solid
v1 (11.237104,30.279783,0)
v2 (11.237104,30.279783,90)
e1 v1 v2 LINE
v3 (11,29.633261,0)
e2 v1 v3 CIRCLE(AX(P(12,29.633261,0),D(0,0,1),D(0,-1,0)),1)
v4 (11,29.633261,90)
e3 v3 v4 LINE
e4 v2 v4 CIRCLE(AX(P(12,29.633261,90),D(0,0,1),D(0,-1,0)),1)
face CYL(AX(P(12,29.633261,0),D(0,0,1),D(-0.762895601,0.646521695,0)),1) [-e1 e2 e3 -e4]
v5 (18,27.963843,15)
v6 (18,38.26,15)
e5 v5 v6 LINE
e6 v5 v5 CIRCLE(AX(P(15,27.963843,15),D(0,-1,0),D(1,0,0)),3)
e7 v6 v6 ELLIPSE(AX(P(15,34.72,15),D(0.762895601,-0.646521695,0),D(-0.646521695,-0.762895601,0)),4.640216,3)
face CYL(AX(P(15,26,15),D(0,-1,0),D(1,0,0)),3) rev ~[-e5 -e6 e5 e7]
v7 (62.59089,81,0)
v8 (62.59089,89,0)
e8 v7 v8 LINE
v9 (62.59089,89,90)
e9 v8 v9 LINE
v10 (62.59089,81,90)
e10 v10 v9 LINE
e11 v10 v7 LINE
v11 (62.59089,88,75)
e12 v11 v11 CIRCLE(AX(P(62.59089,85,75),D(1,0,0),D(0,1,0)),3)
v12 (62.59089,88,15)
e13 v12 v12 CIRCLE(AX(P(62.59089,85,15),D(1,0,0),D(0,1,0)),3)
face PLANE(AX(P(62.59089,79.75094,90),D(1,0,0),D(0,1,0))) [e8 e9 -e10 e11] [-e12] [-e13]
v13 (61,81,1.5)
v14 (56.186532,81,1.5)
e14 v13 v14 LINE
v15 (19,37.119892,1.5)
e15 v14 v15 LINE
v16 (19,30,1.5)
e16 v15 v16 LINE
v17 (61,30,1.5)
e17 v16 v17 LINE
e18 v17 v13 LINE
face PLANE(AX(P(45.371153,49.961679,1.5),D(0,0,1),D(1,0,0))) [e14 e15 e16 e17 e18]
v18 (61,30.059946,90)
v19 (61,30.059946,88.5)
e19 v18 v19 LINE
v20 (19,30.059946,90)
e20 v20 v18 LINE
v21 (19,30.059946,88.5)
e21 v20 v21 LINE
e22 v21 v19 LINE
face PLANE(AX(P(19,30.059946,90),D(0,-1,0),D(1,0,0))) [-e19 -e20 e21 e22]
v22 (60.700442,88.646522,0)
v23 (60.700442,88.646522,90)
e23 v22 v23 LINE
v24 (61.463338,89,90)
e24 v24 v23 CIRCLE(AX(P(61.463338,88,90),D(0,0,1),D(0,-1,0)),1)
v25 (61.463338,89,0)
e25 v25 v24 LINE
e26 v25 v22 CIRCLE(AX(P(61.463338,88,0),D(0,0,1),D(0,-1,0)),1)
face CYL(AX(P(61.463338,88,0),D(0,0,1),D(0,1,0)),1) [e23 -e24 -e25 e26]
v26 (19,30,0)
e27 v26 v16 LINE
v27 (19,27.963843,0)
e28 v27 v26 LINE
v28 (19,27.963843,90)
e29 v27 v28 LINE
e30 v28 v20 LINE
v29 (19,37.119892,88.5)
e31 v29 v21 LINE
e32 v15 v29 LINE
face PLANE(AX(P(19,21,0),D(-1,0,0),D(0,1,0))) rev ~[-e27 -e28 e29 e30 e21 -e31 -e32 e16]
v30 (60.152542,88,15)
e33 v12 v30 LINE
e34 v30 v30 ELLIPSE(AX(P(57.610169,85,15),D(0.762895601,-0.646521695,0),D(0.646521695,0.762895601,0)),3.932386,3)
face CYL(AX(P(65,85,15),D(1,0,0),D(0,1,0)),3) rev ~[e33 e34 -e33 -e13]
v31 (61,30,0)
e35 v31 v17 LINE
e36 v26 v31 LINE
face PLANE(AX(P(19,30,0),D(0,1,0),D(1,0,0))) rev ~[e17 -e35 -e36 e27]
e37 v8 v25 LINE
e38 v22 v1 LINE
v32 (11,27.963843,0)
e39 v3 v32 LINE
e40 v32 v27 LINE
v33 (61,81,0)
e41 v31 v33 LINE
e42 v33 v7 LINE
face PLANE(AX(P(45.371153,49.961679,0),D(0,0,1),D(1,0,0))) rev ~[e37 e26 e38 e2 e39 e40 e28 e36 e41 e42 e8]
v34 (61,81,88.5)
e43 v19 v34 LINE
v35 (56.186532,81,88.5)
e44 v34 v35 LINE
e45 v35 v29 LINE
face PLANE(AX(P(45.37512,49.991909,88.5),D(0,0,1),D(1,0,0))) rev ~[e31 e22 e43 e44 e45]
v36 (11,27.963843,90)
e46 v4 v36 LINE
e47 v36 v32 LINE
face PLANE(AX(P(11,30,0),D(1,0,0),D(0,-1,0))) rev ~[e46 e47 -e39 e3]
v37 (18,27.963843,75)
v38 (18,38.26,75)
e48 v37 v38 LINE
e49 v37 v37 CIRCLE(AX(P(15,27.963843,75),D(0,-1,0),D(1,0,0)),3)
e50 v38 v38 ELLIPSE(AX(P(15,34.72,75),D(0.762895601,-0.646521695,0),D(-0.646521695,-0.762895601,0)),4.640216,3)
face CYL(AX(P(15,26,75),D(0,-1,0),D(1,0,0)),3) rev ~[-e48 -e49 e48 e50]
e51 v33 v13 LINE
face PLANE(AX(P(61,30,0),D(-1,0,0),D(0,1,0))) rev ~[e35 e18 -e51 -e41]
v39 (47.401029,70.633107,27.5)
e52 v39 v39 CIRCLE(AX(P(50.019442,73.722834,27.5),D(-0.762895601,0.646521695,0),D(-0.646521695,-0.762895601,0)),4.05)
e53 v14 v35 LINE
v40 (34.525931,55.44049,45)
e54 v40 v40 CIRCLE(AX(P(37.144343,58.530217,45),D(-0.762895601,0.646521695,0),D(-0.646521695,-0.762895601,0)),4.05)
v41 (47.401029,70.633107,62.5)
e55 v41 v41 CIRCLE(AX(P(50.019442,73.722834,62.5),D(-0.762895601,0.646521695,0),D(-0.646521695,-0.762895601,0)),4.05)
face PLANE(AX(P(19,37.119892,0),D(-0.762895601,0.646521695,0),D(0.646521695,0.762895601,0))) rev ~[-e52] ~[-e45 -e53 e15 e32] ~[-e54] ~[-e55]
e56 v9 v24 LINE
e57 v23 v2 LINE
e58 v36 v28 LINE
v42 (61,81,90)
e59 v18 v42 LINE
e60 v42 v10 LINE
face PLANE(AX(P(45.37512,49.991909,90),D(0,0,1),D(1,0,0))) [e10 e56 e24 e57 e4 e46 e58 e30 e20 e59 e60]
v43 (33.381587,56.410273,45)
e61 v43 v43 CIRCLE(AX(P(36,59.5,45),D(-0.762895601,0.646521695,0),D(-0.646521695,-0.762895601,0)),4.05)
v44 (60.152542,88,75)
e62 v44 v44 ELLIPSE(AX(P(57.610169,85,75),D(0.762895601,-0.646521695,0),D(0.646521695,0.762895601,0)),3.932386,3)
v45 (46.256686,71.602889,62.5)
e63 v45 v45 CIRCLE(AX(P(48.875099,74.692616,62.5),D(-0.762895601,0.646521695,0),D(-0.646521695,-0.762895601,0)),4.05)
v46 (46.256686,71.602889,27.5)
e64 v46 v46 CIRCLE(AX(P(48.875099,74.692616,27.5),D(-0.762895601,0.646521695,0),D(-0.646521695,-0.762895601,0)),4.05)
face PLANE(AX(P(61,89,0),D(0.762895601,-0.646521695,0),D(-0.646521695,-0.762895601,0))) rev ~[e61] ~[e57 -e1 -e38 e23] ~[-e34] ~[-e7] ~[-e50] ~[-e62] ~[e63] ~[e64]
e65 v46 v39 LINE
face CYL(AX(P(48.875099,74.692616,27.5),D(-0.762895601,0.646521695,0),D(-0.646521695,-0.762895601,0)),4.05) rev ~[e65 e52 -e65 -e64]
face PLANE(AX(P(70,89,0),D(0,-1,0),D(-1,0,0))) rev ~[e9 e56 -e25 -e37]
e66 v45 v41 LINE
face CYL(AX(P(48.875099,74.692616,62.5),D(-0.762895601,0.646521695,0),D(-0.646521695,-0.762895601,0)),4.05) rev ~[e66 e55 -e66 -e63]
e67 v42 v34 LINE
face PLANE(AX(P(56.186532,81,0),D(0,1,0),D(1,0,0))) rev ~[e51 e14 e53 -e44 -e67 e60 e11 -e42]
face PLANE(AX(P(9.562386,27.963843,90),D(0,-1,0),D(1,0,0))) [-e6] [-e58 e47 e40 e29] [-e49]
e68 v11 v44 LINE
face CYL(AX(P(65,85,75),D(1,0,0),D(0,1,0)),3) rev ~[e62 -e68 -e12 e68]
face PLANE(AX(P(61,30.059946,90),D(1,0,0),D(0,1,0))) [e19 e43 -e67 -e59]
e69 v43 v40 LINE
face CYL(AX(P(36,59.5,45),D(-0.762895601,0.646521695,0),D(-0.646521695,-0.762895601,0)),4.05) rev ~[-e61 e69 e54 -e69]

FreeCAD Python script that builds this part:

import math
import FreeCAD as App
import Part
import Sketcher

V = App.Vector
Q = App.Units.Quantity


def edges_at(feature, points):
    """Names of the edges that pass closest to the given points."""
    edges = feature.Shape.Edges
    near = lambda p: min(range(len(edges)), key=lambda i: edges[i].distToShape(Part.Vertex(*p))[0])
    return sorted({f"Edge{near(p) + 1}" for p in points})


def add_polygon(sketch, points):
    """Adds a closed chain of lines whose ends are joined by coincident constraints."""
    first, n = sketch.GeometryCount, len(points)
    for a, b in zip(points, points[1:] + points[:1]):
        sketch.addGeometry(Part.LineSegment(App.Vector(*a, 0), App.Vector(*b, 0)), False)
    for i in range(n):
        sketch.addConstraint(Sketcher.Constraint("Coincident", first + i, 2, first + (i + 1) % n, 1))

doc = App.newDocument("Part")
body = doc.addObject("PartDesign::Body", "Body")

# Sketch on XY plane
sketch1 = body.newObject("Sketcher::SketchObject", "Sketch")
sketch1.AttachmentSupport = (doc.getObject("XY_Plane"), [""])
sketch1.MapMode = "FlatFace"
add_polygon(sketch1, [(70, 89), (61, 89), (11, 30), (11, 21), (19, 21), (19, 37), (56, 81), (70, 81)])  # lines 0-7
sketch1.addConstraint([
    Sketcher.Constraint("Horizontal", 0),
    Sketcher.Constraint("Vertical", 2),
    Sketcher.Constraint("Horizontal", 3),
    Sketcher.Constraint("Vertical", 4),
    Sketcher.Constraint("Horizontal", 6),
    Sketcher.Constraint("Vertical", 7),
    Sketcher.Constraint("Parallel", 1, 5),
    Sketcher.Constraint("Equal", 0, 2),
    Sketcher.Constraint("Equal", 3, 7),
    Sketcher.Constraint("DistanceX", 0, 2, 0, 1, Q("9 mm")),
    Sketcher.Constraint("DistanceX", 3, 1, 3, 2, Q("8 mm")),
    Sketcher.Constraint("DistanceX", -1, 1, 0, 2, Q("61 mm")),
    Sketcher.Constraint("DistanceY", -1, 1, 0, 2, Q("89 mm")),
    Sketcher.Constraint("DistanceX", -1, 1, 1, 2, Q("11 mm")),
    Sketcher.Constraint("DistanceY", -1, 1, 1, 2, Q("30 mm")),
    Sketcher.Constraint("DistanceX", 6, 1, 6, 2, Q("13.813468 mm")),
])
pad1 = body.newObject("PartDesign::Pad", "Pad")
pad1.Profile = sketch1
pad1.Length = 90

# Sketch on an angled plane
sketch2 = body.newObject("Sketcher::SketchObject", "Sketch001")
sketch2.Placement = App.Placement(V(-8.39475, 7.114195, 0), App.Rotation(V(-0.646521695, -0.762895601, 0), V(0, 0, 1), V(-0.762895601, 0.646521695, 0), "ZXY"))
sketch2.addGeometry([
    Part.Circle(V(-88.6, 27.5, 0), V(0, 0, 1), 4),
    Part.Circle(V(-88.6, 62.5, 0), V(0, 0, 1), 4),
    Part.Circle(V(-68.7, 45, 0), V(0, 0, 1), 4),
], False)
sketch2.addConstraint([
    Sketcher.Constraint("Equal", 0, 1),
    Sketcher.Constraint("Equal", 1, 2),
    Sketcher.Constraint("Vertical", 0, 3, 1, 3),
    Sketcher.Constraint("Diameter", 0, Q("8.1 mm")),
    Sketcher.Constraint("DistanceY", -1, 1, 2, 3, Q("45 mm")),
    Sketcher.Constraint("DistanceY", 0, 3, 1, 3, Q("35 mm")),
    Sketcher.Constraint("DistanceY", -1, 1, 0, 3, Q("27.5 mm")),
    Sketcher.Constraint("DistanceX", 0, 3, -1, 1, Q("88.58148 mm")),
    Sketcher.Constraint("DistanceX", 2, 3, -1, 1, Q("68.667069 mm")),
])
pocket1 = body.newObject("PartDesign::Pocket", "Pocket")
pocket1.Profile = sketch2
pocket1.Length = 25

# Sketch on XZ plane
sketch3 = body.newObject("Sketcher::SketchObject", "Sketch002")
sketch3.AttachmentSupport = (doc.getObject("XZ_Plane"), [""])
sketch3.MapMode = "FlatFace"
sketch3.AttachmentOffset = App.Placement(V(0, 0, -21), App.Rotation())
sketch3.addGeometry([
    Part.ArcOfCircle(Part.Circle(V(15, 75, 0), V(0, 0, 1), 1.8), math.radians(0), math.radians(90)),  # 0
    Part.ArcOfCircle(Part.Circle(V(15, 75, 0), V(0, 0, 1), 1.8), math.radians(90), math.radians(270)),  # 1
    Part.ArcOfCircle(Part.Circle(V(15, 75, 0), V(0, 0, 1), 1.8), math.radians(-90), math.radians(0)),  # 2
    Part.ArcOfCircle(Part.Circle(V(15, 15, 0), V(0, 0, 1), 1.8), math.radians(0), math.radians(90)),  # 3
    Part.ArcOfCircle(Part.Circle(V(15, 15, 0), V(0, 0, 1), 1.8), math.radians(90), math.radians(270)),  # 4
    Part.ArcOfCircle(Part.Circle(V(15, 15, 0), V(0, 0, 1), 1.8), math.radians(-90), math.radians(0)),  # 5
], False)
sketch3.addConstraint([
    Sketcher.Constraint("Tangent", 0, 2, 1, 1),
    Sketcher.Constraint("Tangent", 1, 2, 2, 1),
    Sketcher.Constraint("Tangent", 2, 2, 0, 1),
    Sketcher.Constraint("Tangent", 3, 2, 4, 1),
    Sketcher.Constraint("Tangent", 4, 2, 5, 1),
    Sketcher.Constraint("Tangent", 5, 2, 3, 1),
    Sketcher.Constraint("Equal", 2, 3),
    Sketcher.Constraint("Horizontal", 1, 3, 2, 2),
    Sketcher.Constraint("Horizontal", 4, 3, 5, 2),
    Sketcher.Constraint("Vertical", 2, 3, 3, 3),
    Sketcher.Constraint("Vertical", 5, 3, 0, 2),
    Sketcher.Constraint("Vertical", 0, 2, 1, 2),
    Sketcher.Constraint("Vertical", 1, 2, 3, 2),
    Sketcher.Constraint("Vertical", 3, 2, 4, 2),
    Sketcher.Constraint("Radius", 0, Q("1.75 mm")),
    Sketcher.Constraint("DistanceX", -1, 1, 0, 3, Q("15 mm")),
    Sketcher.Constraint("DistanceY", -1, 1, 0, 3, Q("75 mm")),
    Sketcher.Constraint("DistanceY", -1, 1, 3, 3, Q("15 mm")),
])
pocket2 = body.newObject("PartDesign::Pocket", "Pocket001")
pocket2.Profile = sketch3
pocket2.Length = 25

# Sketch on YZ plane
sketch4 = body.newObject("Sketcher::SketchObject", "Sketch003")
sketch4.AttachmentSupport = (doc.getObject("YZ_Plane"), [""])
sketch4.MapMode = "FlatFace"
sketch4.AttachmentOffset = App.Placement(V(0, 0, 70), App.Rotation())
sketch4.addGeometry([
    Part.Circle(V(85, 75, 0), V(0, 0, 1), 1.8),
    Part.Circle(V(85, 15, 0), V(0, 0, 1), 1.8),
], False)
sketch4.addConstraint([
    Sketcher.Constraint("Equal", 0, 1),
    Sketcher.Constraint("Vertical", 0, 3, 1, 3),
    Sketcher.Constraint("Diameter", 0, Q("3.5 mm")),
    Sketcher.Constraint("DistanceX", -1, 1, 0, 3, Q("85 mm")),
    Sketcher.Constraint("DistanceY", -1, 1, 0, 3, Q("75 mm")),
    Sketcher.Constraint("DistanceY", -1, 1, 1, 3, Q("15 mm")),
])
pocket3 = body.newObject("PartDesign::Pocket", "Pocket002")
pocket3.Profile = sketch4
pocket3.Length = 25

# Sketch on YZ plane
sketch5 = body.newObject("Sketcher::SketchObject", "Sketch004")
sketch5.AttachmentSupport = (doc.getObject("YZ_Plane"), [""])
sketch5.MapMode = "FlatFace"
sketch5.AttachmentOffset = App.Placement(V(0, 0, 65), App.Rotation())
sketch5.addGeometry([
    Part.Circle(V(85, 75, 0), V(0, 0, 1), 3),
    Part.Circle(V(85, 15, 0), V(0, 0, 1), 3),
], False)
sketch5.addConstraint([
    Sketcher.Constraint("Equal", 0, 1),
    Sketcher.Constraint("Vertical", 0, 3, 1, 3),
    Sketcher.Constraint("Diameter", 0, Q("6 mm")),
    Sketcher.Constraint("DistanceX", -1, 1, 0, 3, Q("85 mm")),
    Sketcher.Constraint("DistanceY", -1, 1, 0, 3, Q("75 mm")),
    Sketcher.Constraint("DistanceY", -1, 1, 1, 3, Q("15 mm")),
])
pocket4 = body.newObject("PartDesign::Pocket", "Pocket003")
pocket4.Profile = sketch5
pocket4.Length = 25

# Sketch on XZ plane
sketch6 = body.newObject("Sketcher::SketchObject", "Sketch005")
sketch6.AttachmentSupport = (doc.getObject("XZ_Plane"), [""])
sketch6.MapMode = "FlatFace"
sketch6.AttachmentOffset = App.Placement(V(0, 0, -26), App.Rotation())
sketch6.addGeometry([
    Part.Circle(V(15, 75, 0), V(0, 0, 1), 3),
    Part.Circle(V(15, 15, 0), V(0, 0, 1), 3),
], False)
sketch6.addConstraint([
    Sketcher.Constraint("Equal", 0, 1),
    Sketcher.Constraint("Vertical", 0, 3, 1, 3),
    Sketcher.Constraint("Diameter", 0, Q("6 mm")),
    Sketcher.Constraint("DistanceX", -1, 1, 0, 3, Q("15 mm")),
    Sketcher.Constraint("DistanceY", -1, 1, 0, 3, Q("75 mm")),
    Sketcher.Constraint("DistanceY", -1, 1, 1, 3, Q("15 mm")),
])
pocket5 = body.newObject("PartDesign::Pocket", "Pocket004")
pocket5.Profile = sketch6
pocket5.Length = 25
doc.recompute()

chamfer = body.newObject("PartDesign::Chamfer", "Chamfer")
chamfer.Base = (pocket5, edges_at(pocket5, [
    (70, 81, 45),
    (70, 89, 45),
    (19, 21, 45),
    (11, 21, 45),
]))
chamfer.Size = 2
doc.recompute()

fillet = body.newObject("PartDesign::Fillet", "Fillet")
fillet.Base = (chamfer, edges_at(chamfer, [(61, 89, 45), (11, 30, 45)]))
fillet.Radius = 1

# Sketch on XY plane
sketch7 = body.newObject("Sketcher::SketchObject", "Sketch006")
sketch7.AttachmentSupport = (doc.getObject("XY_Plane"), [""])
sketch7.MapMode = "FlatFace"
sketch7.AttachmentOffset = App.Placement(V(0, 0, 90), App.Rotation())
add_polygon(sketch7, [(19, 37.1), (19, 30.1), (61, 30.1), (61, 81), (56.2, 81)])  # lines 0-4
sketch7.addConstraint([
    Sketcher.Constraint("Vertical", 0),
    Sketcher.Constraint("Horizontal", 1),
    Sketcher.Constraint("Vertical", 2),
    Sketcher.Constraint("Horizontal", 3),
    Sketcher.Constraint("DistanceX", 1, 1, 1, 2, Q("42 mm")),
    Sketcher.Constraint("DistanceX", -1, 1, 0, 2, Q("19 mm")),
    Sketcher.Constraint("DistanceY", -1, 1, 2, 2, Q("81 mm")),
    Sketcher.Constraint("DistanceX", 3, 2, 3, 1, Q("4.813468 mm")),
    Sketcher.Constraint("Distance", 4, Q("57.517841 mm")),
    Sketcher.Constraint("DistanceY", 0, 2, 0, 1, Q("7.059946 mm")),
])
pad2 = body.newObject("PartDesign::Pad", "Pad001")
pad2.Profile = sketch7
pad2.Length = 1.5
pad2.Reversed = True

# Sketch on XY plane
sketch8 = body.newObject("Sketcher::SketchObject", "Sketch007")
sketch8.AttachmentSupport = (doc.getObject("XY_Plane"), [""])
sketch8.MapMode = "FlatFace"
add_polygon(sketch8, [(61, 30), (61, 81), (56.2, 81), (19, 37.1), (19, 30)])  # lines 0-4
sketch8.addConstraint([
    Sketcher.Constraint("Vertical", 0),
    Sketcher.Constraint("Horizontal", 1),
    Sketcher.Constraint("Vertical", 3),
    Sketcher.Constraint("Horizontal", 4),
    Sketcher.Constraint("DistanceX", 4, 1, 4, 2, Q("42 mm")),
    Sketcher.Constraint("DistanceY", 0, 1, 0, 2, Q("51 mm")),
    Sketcher.Constraint("DistanceX", -1, 1, 0, 2, Q("61 mm")),
    Sketcher.Constraint("DistanceY", -1, 1, 0, 2, Q("81 mm")),
    Sketcher.Constraint("DistanceX", 1, 2, 1, 1, Q("4.813468 mm")),
    Sketcher.Constraint("Distance", 2, Q("57.517841 mm")),
])
pad3 = body.newObject("PartDesign::Pad", "Pad002")
pad3.Profile = sketch8
pad3.Length = 1.5

# Sketch on XY plane
sketch9 = body.newObject("Sketcher::SketchObject", "Sketch008")
sketch9.AttachmentSupport = (doc.getObject("XY_Plane"), [""])
sketch9.MapMode = "FlatFace"
sketch9.AttachmentOffset = App.Placement(V(0, 0, 90), App.Rotation())
add_polygon(sketch9, [(63, 90), (63, 80), (72, 80), (72, 90)])  # lines 0-3
add_polygon(sketch9, [(10, 28), (10, 20), (21, 20), (21, 28)])  # lines 4-7
sketch9.addConstraint([
    Sketcher.Constraint("Vertical", 0),
    Sketcher.Constraint("Horizontal", 1),
    Sketcher.Constraint("Vertical", 2),
    Sketcher.Constraint("Horizontal", 3),
    Sketcher.Constraint("Vertical", 4),
    Sketcher.Constraint("Horizontal", 5),
    Sketcher.Constraint("Vertical", 6),
    Sketcher.Constraint("Horizontal", 7),
    Sketcher.Constraint("DistanceX", 1, 1, 1, 2, Q("9.346962 mm")),
    Sketcher.Constraint("DistanceX", 5, 1, 5, 2, Q("11.746857 mm")),
    Sketcher.Constraint("DistanceY", 0, 2, 0, 1, Q("10.483757 mm")),
    Sketcher.Constraint("DistanceY", 4, 2, 4, 1, Q("8.083858 mm")),
    Sketcher.Constraint("DistanceX", -1, 1, 0, 2, Q("62.59089 mm")),
    Sketcher.Constraint("DistanceY", -1, 1, 0, 2, Q("79.75094 mm")),
    Sketcher.Constraint("DistanceY", 4, 2, 3, 2, Q("70.354711 mm")),
    Sketcher.Constraint("DistanceX", 5, 2, 1, 2, Q("50.628608 mm")),
])
pocket6 = body.newObject("PartDesign::Pocket", "Pocket005")
pocket6.Profile = sketch9
pocket6.Type = "ThroughAll"

doc.recompute()
